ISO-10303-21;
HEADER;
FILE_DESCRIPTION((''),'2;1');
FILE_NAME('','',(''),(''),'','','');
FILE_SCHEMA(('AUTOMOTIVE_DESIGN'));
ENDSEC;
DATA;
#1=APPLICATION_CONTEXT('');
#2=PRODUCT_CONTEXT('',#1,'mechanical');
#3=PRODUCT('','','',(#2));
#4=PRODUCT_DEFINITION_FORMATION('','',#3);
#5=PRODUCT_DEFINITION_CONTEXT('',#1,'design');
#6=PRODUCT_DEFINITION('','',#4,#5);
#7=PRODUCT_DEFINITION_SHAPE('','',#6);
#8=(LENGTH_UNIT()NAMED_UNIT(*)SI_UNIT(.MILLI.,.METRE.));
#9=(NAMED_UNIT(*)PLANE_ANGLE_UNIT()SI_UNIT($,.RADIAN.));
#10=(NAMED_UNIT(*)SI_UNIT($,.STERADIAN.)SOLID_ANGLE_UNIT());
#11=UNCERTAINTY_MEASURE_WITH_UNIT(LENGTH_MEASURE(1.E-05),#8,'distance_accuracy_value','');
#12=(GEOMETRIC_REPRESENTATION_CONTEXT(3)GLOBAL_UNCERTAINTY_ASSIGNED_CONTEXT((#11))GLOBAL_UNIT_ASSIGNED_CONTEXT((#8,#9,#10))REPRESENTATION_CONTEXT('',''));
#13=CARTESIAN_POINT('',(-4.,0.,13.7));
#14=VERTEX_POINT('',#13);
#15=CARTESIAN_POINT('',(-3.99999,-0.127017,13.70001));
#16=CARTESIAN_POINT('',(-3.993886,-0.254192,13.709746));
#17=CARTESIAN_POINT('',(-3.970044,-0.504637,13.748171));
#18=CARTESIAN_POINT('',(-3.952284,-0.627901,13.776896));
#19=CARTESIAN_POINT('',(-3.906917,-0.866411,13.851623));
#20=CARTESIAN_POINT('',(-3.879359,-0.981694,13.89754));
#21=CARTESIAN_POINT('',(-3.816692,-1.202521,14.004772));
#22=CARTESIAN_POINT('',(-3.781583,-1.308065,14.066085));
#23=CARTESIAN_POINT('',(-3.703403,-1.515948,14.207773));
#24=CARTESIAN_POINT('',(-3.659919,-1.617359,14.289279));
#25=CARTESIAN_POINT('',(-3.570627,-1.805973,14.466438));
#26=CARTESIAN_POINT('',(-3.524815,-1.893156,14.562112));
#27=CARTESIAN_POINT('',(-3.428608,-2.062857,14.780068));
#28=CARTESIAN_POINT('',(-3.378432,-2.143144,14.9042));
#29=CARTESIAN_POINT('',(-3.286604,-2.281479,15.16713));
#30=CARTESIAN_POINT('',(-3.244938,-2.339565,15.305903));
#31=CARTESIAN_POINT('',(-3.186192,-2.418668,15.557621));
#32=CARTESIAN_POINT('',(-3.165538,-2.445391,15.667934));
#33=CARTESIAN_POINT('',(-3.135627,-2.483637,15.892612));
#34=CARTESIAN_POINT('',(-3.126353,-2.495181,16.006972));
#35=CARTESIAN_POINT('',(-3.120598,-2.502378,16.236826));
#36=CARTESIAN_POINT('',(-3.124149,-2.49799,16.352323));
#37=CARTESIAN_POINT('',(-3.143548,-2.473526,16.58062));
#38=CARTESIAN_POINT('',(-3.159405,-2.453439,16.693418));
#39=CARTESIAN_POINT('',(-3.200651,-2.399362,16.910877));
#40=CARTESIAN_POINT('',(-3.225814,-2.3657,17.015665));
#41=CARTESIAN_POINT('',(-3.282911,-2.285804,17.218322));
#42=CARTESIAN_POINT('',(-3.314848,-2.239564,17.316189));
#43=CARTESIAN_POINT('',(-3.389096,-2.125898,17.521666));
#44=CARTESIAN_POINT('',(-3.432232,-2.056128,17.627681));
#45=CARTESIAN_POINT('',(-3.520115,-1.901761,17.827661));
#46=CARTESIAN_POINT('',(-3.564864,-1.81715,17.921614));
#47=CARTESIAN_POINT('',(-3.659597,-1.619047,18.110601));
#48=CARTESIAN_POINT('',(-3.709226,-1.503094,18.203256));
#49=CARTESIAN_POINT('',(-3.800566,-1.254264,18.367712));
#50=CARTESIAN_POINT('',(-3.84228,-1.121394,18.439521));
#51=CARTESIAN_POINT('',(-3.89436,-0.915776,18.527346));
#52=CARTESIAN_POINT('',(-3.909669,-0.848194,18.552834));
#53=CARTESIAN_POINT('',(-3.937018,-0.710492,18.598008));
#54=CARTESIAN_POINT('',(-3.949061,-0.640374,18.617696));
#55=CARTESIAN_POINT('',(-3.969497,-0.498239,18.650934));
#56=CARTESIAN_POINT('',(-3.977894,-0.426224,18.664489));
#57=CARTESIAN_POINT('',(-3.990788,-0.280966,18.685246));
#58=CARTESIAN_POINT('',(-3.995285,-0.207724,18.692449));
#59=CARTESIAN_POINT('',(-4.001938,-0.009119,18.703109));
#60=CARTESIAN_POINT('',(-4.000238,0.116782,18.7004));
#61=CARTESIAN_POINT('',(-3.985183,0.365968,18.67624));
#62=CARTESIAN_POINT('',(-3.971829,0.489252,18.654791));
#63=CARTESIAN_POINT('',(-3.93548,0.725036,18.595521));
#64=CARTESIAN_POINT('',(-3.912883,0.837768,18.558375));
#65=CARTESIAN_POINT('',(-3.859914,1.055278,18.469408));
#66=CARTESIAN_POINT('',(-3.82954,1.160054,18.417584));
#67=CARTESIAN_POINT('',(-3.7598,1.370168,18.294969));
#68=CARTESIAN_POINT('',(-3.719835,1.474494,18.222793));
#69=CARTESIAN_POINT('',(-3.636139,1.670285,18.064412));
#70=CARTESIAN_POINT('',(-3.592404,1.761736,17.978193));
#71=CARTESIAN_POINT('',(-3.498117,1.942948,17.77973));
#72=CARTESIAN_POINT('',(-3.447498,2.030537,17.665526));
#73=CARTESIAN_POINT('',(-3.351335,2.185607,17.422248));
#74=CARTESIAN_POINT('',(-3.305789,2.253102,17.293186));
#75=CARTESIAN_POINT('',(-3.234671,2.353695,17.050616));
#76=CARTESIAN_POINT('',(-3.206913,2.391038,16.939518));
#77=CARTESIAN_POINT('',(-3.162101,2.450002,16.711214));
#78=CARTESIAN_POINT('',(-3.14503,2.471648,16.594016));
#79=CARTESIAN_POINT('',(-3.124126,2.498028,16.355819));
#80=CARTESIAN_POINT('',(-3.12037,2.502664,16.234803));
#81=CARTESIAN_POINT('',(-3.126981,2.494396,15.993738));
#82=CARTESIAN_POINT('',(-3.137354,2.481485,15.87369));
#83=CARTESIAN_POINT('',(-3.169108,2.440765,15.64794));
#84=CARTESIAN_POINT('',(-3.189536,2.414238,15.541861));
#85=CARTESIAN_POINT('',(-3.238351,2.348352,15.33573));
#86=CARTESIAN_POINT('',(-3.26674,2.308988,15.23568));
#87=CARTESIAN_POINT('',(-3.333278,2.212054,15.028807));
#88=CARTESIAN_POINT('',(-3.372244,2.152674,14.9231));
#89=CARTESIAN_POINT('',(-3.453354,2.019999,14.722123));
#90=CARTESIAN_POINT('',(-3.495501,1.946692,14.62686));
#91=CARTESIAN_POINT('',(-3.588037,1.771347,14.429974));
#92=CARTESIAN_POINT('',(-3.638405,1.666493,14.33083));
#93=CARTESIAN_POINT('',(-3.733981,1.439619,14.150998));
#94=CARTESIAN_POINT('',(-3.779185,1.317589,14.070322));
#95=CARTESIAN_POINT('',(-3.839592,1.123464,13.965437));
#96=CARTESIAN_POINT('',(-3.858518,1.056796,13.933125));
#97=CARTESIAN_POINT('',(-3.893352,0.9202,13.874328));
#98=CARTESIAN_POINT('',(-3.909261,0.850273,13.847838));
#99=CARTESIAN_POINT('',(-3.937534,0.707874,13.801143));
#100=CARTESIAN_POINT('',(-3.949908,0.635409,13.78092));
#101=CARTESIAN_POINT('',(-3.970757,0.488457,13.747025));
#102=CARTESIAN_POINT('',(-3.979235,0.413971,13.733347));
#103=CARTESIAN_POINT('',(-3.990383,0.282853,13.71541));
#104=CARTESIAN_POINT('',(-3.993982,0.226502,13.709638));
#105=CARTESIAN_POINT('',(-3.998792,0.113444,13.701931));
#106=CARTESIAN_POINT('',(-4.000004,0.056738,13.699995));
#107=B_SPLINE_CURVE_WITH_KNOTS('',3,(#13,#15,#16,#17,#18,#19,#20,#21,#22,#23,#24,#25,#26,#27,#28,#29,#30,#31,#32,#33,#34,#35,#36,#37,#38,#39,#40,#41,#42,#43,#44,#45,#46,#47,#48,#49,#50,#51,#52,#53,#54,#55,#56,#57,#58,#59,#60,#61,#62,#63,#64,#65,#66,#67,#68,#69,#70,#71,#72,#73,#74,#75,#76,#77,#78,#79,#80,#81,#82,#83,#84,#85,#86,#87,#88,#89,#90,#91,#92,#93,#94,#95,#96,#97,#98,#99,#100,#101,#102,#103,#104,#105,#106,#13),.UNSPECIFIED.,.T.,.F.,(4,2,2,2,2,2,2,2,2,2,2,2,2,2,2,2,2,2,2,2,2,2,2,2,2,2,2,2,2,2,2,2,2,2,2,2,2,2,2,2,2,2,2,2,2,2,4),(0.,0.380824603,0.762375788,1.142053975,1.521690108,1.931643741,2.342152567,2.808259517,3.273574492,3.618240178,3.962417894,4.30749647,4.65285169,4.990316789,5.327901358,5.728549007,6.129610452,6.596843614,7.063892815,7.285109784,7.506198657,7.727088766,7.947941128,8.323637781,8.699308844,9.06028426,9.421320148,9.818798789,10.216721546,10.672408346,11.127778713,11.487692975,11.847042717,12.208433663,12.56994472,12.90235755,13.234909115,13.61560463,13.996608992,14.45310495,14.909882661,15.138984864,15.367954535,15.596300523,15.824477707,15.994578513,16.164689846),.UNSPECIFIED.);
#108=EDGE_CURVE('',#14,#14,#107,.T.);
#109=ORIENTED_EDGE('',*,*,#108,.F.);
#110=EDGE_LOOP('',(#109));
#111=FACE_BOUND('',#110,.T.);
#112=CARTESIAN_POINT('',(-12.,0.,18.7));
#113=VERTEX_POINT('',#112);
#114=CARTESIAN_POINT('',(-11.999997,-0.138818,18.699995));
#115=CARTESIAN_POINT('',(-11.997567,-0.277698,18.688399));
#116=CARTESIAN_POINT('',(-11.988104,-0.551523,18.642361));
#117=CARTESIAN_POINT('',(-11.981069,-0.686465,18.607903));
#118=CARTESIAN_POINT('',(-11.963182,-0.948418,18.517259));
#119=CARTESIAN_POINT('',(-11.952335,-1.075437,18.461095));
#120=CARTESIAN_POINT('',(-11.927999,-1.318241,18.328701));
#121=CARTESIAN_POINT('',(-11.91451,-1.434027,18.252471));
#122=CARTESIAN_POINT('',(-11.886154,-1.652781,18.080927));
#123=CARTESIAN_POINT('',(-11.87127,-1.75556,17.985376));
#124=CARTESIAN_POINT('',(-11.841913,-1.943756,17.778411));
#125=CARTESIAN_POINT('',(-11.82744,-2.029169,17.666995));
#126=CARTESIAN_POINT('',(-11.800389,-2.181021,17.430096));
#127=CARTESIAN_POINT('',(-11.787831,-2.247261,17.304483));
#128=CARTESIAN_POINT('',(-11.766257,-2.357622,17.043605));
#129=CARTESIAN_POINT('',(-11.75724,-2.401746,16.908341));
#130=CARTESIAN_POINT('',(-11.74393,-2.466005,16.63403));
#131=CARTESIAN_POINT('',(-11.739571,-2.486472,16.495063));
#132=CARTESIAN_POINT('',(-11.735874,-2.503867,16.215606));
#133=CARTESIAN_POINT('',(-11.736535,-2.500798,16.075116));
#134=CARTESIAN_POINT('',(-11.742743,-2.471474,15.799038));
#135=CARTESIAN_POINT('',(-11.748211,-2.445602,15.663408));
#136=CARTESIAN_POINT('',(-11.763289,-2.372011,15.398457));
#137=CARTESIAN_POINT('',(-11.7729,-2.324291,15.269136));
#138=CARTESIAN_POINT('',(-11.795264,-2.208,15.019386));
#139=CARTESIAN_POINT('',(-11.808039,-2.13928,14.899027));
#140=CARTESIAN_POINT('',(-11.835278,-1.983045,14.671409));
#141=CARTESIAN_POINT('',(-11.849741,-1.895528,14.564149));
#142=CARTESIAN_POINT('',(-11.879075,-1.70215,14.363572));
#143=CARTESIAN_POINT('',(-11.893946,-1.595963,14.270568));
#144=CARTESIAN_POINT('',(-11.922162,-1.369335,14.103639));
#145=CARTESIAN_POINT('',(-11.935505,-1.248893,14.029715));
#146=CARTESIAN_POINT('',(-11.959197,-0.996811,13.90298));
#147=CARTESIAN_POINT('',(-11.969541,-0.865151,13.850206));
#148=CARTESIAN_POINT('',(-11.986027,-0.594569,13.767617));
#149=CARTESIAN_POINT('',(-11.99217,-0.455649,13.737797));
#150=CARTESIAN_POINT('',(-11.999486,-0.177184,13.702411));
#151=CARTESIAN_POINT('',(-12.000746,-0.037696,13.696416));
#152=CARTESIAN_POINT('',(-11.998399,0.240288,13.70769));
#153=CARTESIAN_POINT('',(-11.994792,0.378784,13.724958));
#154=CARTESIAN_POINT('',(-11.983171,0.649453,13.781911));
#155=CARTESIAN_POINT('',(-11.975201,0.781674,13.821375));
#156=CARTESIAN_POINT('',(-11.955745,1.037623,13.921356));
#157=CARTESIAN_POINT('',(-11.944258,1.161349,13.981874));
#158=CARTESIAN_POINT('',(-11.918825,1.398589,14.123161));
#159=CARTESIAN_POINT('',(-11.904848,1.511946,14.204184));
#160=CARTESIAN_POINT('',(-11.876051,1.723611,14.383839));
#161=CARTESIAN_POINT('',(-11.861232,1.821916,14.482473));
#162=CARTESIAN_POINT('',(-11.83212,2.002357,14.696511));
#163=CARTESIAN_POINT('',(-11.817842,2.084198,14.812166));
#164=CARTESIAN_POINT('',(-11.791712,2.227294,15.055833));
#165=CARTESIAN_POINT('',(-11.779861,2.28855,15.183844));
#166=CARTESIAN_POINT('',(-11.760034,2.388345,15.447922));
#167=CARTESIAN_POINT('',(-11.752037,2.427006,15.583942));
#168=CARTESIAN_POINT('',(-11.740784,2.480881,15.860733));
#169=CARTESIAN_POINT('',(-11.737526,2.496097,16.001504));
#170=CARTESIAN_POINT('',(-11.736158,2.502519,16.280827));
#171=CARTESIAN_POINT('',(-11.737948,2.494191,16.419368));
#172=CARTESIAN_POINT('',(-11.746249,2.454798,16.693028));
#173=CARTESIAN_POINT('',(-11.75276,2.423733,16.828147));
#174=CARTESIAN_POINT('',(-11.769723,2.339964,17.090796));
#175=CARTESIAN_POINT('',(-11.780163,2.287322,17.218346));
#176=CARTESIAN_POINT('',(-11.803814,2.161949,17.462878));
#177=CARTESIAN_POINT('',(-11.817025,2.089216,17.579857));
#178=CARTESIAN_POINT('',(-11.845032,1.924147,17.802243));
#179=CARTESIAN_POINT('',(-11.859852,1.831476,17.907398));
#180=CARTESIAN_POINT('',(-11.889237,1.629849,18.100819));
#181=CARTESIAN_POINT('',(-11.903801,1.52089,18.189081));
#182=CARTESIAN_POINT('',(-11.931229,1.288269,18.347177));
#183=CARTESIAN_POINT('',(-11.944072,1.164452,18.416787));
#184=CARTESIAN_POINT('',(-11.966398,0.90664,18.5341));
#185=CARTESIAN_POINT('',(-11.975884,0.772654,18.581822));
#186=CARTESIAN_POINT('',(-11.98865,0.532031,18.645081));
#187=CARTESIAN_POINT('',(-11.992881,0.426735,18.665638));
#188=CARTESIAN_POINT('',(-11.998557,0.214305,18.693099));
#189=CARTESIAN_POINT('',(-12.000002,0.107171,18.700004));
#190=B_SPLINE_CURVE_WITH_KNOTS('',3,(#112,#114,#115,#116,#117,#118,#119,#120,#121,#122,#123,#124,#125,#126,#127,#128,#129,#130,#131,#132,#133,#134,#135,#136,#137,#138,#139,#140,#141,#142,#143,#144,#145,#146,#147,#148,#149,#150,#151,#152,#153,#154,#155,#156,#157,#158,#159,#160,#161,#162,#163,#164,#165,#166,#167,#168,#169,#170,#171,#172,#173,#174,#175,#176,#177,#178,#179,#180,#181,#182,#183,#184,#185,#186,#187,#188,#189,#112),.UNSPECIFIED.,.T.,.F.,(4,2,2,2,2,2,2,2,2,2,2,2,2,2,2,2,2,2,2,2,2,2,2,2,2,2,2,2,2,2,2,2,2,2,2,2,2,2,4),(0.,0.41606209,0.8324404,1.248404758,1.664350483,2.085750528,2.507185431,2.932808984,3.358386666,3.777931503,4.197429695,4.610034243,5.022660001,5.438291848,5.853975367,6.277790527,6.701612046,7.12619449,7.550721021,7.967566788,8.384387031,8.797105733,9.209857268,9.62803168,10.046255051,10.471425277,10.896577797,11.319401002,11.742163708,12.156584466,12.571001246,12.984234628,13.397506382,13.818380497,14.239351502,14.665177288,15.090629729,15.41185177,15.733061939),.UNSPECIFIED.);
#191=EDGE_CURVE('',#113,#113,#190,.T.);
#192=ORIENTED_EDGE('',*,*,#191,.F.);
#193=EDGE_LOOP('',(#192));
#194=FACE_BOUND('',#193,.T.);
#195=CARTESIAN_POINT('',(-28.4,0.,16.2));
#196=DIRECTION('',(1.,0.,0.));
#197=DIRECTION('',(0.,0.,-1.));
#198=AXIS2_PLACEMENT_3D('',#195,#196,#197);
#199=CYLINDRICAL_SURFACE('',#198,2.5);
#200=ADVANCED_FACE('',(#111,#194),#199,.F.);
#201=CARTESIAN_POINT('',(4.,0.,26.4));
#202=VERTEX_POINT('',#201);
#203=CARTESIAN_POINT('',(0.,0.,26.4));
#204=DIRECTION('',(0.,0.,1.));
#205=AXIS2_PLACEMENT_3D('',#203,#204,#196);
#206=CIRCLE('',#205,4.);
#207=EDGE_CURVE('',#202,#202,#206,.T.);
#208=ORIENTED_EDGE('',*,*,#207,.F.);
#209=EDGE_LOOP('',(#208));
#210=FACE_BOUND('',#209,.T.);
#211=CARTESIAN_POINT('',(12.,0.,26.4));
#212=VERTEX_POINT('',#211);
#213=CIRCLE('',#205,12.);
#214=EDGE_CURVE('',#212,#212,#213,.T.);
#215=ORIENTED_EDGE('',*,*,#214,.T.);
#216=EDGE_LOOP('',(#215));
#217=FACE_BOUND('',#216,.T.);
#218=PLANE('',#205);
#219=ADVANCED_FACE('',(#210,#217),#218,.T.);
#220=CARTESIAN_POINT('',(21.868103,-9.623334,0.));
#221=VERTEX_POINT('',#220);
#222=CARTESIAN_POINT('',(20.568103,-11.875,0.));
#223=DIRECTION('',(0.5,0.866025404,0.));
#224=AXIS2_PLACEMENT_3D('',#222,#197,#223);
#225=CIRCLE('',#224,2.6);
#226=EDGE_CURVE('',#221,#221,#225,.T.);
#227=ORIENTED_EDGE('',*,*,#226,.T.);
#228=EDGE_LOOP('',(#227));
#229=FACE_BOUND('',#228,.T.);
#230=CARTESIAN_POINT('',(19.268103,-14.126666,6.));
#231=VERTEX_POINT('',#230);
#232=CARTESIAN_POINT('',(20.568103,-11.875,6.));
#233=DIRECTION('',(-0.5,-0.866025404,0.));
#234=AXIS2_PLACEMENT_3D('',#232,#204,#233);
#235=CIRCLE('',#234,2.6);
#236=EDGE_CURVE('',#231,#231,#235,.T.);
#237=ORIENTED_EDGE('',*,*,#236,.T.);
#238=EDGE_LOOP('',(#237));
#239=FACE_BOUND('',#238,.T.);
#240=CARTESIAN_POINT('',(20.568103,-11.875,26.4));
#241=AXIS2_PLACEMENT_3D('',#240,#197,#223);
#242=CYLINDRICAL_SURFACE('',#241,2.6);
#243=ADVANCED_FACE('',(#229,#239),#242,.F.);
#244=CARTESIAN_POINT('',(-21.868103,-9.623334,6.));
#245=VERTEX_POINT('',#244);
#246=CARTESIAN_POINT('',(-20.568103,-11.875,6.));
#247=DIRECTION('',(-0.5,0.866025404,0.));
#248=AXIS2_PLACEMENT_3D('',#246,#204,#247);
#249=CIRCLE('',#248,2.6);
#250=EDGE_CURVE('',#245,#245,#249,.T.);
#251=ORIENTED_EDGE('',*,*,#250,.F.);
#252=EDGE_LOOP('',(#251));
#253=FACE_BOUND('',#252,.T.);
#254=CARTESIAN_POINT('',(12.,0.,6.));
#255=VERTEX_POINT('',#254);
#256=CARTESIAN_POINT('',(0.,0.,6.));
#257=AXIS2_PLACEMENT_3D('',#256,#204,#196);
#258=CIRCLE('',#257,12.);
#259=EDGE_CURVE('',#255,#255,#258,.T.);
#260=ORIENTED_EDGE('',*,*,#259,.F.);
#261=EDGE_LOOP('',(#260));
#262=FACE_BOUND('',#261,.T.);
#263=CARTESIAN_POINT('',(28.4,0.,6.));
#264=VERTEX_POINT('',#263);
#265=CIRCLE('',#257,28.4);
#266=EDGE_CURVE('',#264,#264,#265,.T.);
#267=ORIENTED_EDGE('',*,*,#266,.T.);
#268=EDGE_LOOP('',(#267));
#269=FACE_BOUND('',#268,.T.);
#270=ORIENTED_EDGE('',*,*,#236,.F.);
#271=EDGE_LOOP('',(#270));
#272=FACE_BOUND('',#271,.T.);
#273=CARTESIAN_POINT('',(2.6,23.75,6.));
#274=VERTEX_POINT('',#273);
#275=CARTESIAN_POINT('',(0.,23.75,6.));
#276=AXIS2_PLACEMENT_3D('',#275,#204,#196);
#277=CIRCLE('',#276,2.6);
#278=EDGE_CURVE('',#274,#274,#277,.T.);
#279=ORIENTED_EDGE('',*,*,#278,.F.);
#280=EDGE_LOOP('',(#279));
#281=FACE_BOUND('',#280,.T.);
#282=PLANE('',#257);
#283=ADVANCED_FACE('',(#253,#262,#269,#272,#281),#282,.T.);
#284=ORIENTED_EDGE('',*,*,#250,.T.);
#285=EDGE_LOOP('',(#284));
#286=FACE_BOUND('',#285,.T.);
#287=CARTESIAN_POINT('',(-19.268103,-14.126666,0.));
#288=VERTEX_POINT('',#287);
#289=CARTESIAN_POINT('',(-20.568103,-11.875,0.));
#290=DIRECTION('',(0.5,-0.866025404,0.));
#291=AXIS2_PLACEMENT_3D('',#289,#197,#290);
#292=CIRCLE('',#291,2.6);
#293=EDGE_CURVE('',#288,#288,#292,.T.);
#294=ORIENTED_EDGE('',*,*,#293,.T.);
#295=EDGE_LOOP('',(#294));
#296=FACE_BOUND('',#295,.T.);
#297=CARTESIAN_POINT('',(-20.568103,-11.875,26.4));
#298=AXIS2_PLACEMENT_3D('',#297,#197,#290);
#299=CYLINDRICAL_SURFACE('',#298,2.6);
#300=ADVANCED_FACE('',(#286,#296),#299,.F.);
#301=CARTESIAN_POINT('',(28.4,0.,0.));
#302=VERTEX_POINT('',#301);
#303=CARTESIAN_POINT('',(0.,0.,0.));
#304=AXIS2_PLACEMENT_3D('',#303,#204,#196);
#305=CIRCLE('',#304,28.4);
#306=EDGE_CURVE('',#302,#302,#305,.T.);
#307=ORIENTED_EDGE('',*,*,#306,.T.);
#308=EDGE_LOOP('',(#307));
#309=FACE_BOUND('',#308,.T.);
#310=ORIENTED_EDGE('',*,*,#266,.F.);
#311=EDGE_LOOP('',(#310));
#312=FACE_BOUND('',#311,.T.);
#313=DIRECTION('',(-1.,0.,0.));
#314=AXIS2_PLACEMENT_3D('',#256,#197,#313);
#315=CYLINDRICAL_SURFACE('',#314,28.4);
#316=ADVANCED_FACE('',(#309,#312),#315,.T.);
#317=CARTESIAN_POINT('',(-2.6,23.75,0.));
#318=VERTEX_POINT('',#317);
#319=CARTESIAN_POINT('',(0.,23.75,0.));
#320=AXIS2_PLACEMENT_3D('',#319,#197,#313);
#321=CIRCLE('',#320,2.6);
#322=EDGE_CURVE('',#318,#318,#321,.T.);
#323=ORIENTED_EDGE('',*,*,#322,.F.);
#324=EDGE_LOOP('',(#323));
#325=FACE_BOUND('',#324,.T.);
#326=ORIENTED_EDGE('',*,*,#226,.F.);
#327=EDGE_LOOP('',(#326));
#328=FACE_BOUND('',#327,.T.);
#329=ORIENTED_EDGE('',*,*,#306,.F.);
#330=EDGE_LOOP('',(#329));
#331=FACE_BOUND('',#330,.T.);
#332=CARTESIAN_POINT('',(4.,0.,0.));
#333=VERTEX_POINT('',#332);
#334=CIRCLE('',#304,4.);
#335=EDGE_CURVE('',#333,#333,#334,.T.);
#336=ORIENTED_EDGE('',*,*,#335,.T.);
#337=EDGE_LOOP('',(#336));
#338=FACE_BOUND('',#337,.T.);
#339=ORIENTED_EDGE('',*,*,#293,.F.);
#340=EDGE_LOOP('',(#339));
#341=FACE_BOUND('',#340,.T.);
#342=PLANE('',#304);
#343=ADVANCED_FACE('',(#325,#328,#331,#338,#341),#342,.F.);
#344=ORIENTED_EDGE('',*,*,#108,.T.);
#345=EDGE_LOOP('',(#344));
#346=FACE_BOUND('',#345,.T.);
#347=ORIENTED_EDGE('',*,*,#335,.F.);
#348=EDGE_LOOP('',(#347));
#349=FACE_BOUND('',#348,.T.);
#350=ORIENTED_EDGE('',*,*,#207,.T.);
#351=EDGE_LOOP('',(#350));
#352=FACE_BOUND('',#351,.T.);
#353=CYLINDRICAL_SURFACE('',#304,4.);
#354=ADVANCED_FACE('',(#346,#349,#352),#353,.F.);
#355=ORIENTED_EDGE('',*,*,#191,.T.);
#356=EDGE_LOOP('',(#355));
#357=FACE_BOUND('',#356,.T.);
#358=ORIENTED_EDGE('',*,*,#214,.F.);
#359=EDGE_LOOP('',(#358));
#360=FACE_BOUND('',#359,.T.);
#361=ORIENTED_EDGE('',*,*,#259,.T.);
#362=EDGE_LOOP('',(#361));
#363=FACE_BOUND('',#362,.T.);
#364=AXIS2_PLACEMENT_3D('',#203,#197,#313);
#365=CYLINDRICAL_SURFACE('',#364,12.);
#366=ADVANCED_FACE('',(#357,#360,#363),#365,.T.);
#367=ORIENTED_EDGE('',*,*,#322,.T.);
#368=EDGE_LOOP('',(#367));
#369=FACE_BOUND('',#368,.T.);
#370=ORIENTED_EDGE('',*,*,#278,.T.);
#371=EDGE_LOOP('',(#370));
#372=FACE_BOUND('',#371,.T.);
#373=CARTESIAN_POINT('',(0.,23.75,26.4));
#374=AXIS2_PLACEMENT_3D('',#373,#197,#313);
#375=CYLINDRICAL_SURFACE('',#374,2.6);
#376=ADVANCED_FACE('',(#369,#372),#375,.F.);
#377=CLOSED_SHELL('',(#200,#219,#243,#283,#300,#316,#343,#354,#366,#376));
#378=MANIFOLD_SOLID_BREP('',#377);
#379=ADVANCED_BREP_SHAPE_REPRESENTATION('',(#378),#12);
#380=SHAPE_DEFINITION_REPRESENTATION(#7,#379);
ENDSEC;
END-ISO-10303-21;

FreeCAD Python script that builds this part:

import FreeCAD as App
import Part
import Sketcher
Q = App.Units.Quantity

doc = App.newDocument("Part")
params = doc.addObject("Spreadsheet::Sheet", "Params")
for row, (alias, value) in enumerate([
    ("sketch1_diameter", "56.8 mm"),
    ("pad1_length", "6 mm"),
    ("sketch2_diameter", "24 mm"),
    ("pad2_length", "20.4 mm"),
    ("sketch3_diameter", "8 mm"),
    ("sketch4_diameter", "5.2 mm"),
    ("sketch5_diameter", "5 mm"),
], start=1):
    params.set(f"A{row}", alias)
    params.set(f"B{row}", "=" + value)
    params.setAlias(f"B{row}", alias)

body = doc.addObject("PartDesign::Body", "Body")

# Sketch on XY plane
sketch1 = body.newObject("Sketcher::SketchObject", "Sketch")
sketch1.AttachmentSupport = (doc.getObject("XY_Plane"), [""])
sketch1.MapMode = "FlatFace"
sketch1.addGeometry(Part.Circle(App.Vector(0, 0, 0), App.Vector(0, 0, 1), 28.4), False)
sketch1.addConstraint([
    Sketcher.Constraint("Coincident", 0, 3, -1, 1),
    Sketcher.Constraint("Diameter", 0, Q("56.8 mm")),
])
sketch1.setExpression("Constraints[1]", "Params.sketch1_diameter")
pad1 = body.newObject("PartDesign::Pad", "Pad")
pad1.Profile = sketch1
pad1.setExpression("Length", "Params.pad1_length")

# Sketch on XY plane
sketch2 = body.newObject("Sketcher::SketchObject", "Sketch001")
sketch2.AttachmentSupport = (doc.getObject("XY_Plane"), [""])
sketch2.MapMode = "FlatFace"
sketch2.AttachmentOffset = App.Placement(App.Vector(0, 0, 6), App.Rotation())
sketch2.addGeometry(Part.Circle(App.Vector(0, 0, 0), App.Vector(0, 0, 1), 12), False)
sketch2.addConstraint([
    Sketcher.Constraint("Coincident", 0, 3, -1, 1),
    Sketcher.Constraint("Diameter", 0, Q("24 mm")),
])
sketch2.setExpression("Constraints[1]", "Params.sketch2_diameter")
pad2 = body.newObject("PartDesign::Pad", "Pad001")
pad2.Profile = sketch2
pad2.setExpression("Length", "Params.pad2_length")

# Sketch on XY plane
sketch3 = body.newObject("Sketcher::SketchObject", "Sketch002")
sketch3.AttachmentSupport = (doc.getObject("XY_Plane"), [""])
sketch3.MapMode = "FlatFace"
sketch3.AttachmentOffset = App.Placement(App.Vector(0, 0, 26.4), App.Rotation())
sketch3.addGeometry(Part.Circle(App.Vector(0, 0, 0), App.Vector(0, 0, 1), 4), False)
sketch3.addConstraint([
    Sketcher.Constraint("Coincident", 0, 3, -1, 1),
    Sketcher.Constraint("Diameter", 0, Q("8 mm")),
])
sketch3.setExpression("Constraints[1]", "Params.sketch3_diameter")
pocket1 = body.newObject("PartDesign::Pocket", "Pocket")
pocket1.Profile = sketch3
pocket1.Type = "ThroughAll"

# Sketch on XY plane
sketch4 = body.newObject("Sketcher::SketchObject", "Sketch003")
sketch4.AttachmentSupport = (doc.getObject("XY_Plane"), [""])
sketch4.MapMode = "FlatFace"
sketch4.addGeometry(Part.Circle(App.Vector(0, 23.75, 0), App.Vector(0, 0, 1), 2.6), False)
sketch4.addConstraint([
    Sketcher.Constraint("PointOnObject", 0, 3, -2),
    Sketcher.Constraint("Diameter", 0, Q("5.2 mm")),
    Sketcher.Constraint("DistanceY", -1, 1, 0, 3, Q("23.75 mm")),
])
sketch4.setExpression("Constraints[1]", "Params.sketch4_diameter")
pocket2 = body.newObject("PartDesign::Pocket", "Pocket001")
pocket2.Profile = sketch4
pocket2.Type = "ThroughAll"
pocket2.Reversed = True
doc.recompute()

polarpattern = body.newObject("PartDesign::PolarPattern", "PolarPattern")
polarpattern.Originals = [pocket2]
polarpattern.Axis = (doc.getObject("Z_Axis"), [""])
polarpattern.Angle = 360
polarpattern.Occurrences = 3
body.Tip = polarpattern

# Sketch on YZ plane
sketch5 = body.newObject("Sketcher::SketchObject", "Sketch004")
sketch5.AttachmentSupport = (doc.getObject("YZ_Plane"), [""])
sketch5.MapMode = "FlatFace"
sketch5.addGeometry(Part.Circle(App.Vector(0, 16.2, 0), App.Vector(0, 0, 1), 2.5), False)
sketch5.addConstraint([
    Sketcher.Constraint("PointOnObject", 0, 3, -2),
    Sketcher.Constraint("Diameter", 0, Q("5 mm")),
    Sketcher.Constraint("DistanceY", -1, 1, 0, 3, Q("16.2 mm")),
])
sketch5.setExpression("Constraints[1]", "Params.sketch5_diameter")
pocket3 = body.newObject("PartDesign::Pocket", "Pocket002")
pocket3.Profile = sketch5
pocket3.Type = "ThroughAll"

doc.recompute()
